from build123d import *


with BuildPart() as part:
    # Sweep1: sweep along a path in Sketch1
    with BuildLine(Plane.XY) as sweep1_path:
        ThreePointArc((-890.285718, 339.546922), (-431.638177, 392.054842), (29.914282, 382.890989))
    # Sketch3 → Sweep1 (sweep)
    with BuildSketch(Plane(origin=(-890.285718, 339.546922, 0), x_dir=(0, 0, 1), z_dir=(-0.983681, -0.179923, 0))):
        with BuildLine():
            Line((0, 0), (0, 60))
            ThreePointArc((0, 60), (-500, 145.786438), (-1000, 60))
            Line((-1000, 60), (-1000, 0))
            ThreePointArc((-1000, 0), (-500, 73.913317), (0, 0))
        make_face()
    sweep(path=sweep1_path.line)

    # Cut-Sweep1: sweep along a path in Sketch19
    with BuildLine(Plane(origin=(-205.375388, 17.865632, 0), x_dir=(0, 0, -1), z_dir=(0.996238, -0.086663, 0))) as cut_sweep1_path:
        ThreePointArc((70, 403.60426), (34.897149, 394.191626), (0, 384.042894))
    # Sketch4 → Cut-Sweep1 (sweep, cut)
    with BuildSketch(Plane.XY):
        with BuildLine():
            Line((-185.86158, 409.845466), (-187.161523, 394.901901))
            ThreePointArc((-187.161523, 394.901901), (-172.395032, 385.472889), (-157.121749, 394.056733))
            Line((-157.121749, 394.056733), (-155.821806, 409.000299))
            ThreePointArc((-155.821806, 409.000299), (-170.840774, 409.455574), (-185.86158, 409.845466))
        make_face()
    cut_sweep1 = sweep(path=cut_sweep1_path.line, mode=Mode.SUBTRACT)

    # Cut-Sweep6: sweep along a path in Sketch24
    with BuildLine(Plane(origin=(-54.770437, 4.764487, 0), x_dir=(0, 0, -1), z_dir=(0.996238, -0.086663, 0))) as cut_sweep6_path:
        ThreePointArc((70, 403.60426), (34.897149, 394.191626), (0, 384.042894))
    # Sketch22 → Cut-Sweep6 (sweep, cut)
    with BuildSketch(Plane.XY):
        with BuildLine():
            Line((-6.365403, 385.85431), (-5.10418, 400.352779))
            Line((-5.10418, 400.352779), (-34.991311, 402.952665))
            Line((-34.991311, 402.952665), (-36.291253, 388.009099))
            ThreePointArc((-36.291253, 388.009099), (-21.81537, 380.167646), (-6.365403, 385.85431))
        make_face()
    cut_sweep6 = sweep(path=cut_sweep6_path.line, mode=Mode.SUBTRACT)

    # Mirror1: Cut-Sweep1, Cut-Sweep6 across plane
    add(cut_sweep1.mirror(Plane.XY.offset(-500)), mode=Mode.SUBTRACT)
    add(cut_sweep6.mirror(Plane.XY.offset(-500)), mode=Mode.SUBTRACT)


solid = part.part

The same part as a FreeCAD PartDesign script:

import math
import FreeCAD as App
import Part
import Sketcher
from FreeCAD import Vector

doc = App.newDocument("Part")
body = doc.addObject("PartDesign::Body", "Body")

# Sketch on an angled plane
sketch1 = body.newObject("Sketcher::SketchObject", "Sketch")
sketch1.Placement = App.Placement(Vector(-890.285718, 339.546922, 0), App.Rotation(Vector(0, 0, 1), Vector(-0.179922946, 0.983680707, 0), Vector(-0.983680707, -0.179922946, 0), "ZXY"))
sketch1.addGeometry([
    Part.LineSegment(Vector(0, 0, 0), Vector(0, 60, 0)),
    Part.ArcOfCircle(Part.Circle(Vector(-500, -1354, 0), Vector(0, 0, 1), 1500), math.radians(71), math.radians(109)),
    Part.LineSegment(Vector(-1000, 60, 0), Vector(-1000, 0, 0)),
    Part.ArcOfCircle(Part.Circle(Vector(-500, -1654, 0), Vector(0, 0, 1), 1728), math.radians(73), math.radians(107)),
], False)
sketch1.addConstraint([
    Sketcher.Constraint("Coincident", 0, 2, 1, 1),
    Sketcher.Constraint("Coincident", 1, 2, 2, 1),
    Sketcher.Constraint("Coincident", 2, 2, 3, 2),
    Sketcher.Constraint("Coincident", 3, 1, 0, 1),
    Sketcher.Constraint("Vertical", 0),
    Sketcher.Constraint("Vertical", 2),
    Sketcher.Constraint("PointOnObject", 0, 2, -2),
    Sketcher.Constraint("PointOnObject", 2, 2, -1),
    Sketcher.Constraint("Vertical", 1, 3, 3, 3),
    Sketcher.Constraint("Equal", 0, 2),
    Sketcher.Constraint("DistanceY", 0, 1, 0, 2, 60.0),
    Sketcher.Constraint("DistanceX", 1, 3, -1, 1, 500.0),
    Sketcher.Constraint("Radius", 3, 1728.126871),
    Sketcher.Constraint("Radius", 1, 1499.999994),
])

# Sketch on XY plane
sketch2 = body.newObject("Sketcher::SketchObject", "Sketch001")
sketch2.AttachmentSupport = (doc.getObject("XY_Plane"), [""])
sketch2.MapMode = "FlatFace"
sketch2.addGeometry(Part.ArcOfCircle(Part.Circle(Vector(-269, -3056, 0), Vector(0, 0, 1), 3452), math.radians(85.03), math.radians(100.37)), False)
sketch2.addConstraint([
    Sketcher.Constraint("DistanceX", 0, 2, 0, 1, 920.2),
    Sketcher.Constraint("Radius", 0, 3451.799975),
    Sketcher.Constraint("DistanceY", 0, 3, -1, 1, 3055.922272),
    Sketcher.Constraint("DistanceX", -1, 1, 0, 1, 29.914282),
    Sketcher.Constraint("DistanceX", 0, 3, -1, 1, 269.228537),
])
doc.recompute()

additivepipe = body.newObject("PartDesign::AdditivePipe", "AdditivePipe")
additivepipe.Profile = sketch1
additivepipe.Spine = (sketch2, ["Edge1"])

# Sketch on XY plane
sketch3 = body.newObject("Sketcher::SketchObject", "Sketch002")
sketch3.AttachmentSupport = (doc.getObject("XY_Plane"), [""])
sketch3.MapMode = "FlatFace"
sketch3.addGeometry([
    Part.LineSegment(Vector(-186, 410, 0), Vector(-187, 395, 0)),
    Part.ArcOfCircle(Part.Circle(Vector(-172, 403, 0), Vector(0, 0, 1), 17), math.radians(-154), math.radians(-30)),
    Part.LineSegment(Vector(-157, 394, 0), Vector(-156, 409, 0)),
    Part.ArcOfCircle(Part.Circle(Vector(-268, -3041, 0), Vector(0, 0, 1), 3452), math.radians(88.14), math.radians(88.64)),
], False)
sketch3.addConstraint([
    Sketcher.Constraint("Coincident", 0, 2, 1, 1),
    Sketcher.Constraint("Coincident", 1, 2, 2, 1),
    Sketcher.Constraint("Coincident", 2, 2, 3, 1),
    Sketcher.Constraint("Coincident", 3, 2, 0, 1),
    Sketcher.Constraint("Parallel", 0, 2),
    Sketcher.Constraint("Equal", 0, 2),
    Sketcher.Constraint("Distance", 0, 15.0),
    Sketcher.Constraint("Radius", 1, 17.034174),
    Sketcher.Constraint("Radius", 3, 3451.776386),
    Sketcher.Constraint("DistanceY", -1, 1, 0, 2, 394.901901),
    Sketcher.Constraint("DistanceY", -1, 1, 2, 2, 409.000299),
    Sketcher.Constraint("DistanceX", 1, 2, -1, 1, 157.121749),
    Sketcher.Constraint("DistanceY", 3, 3, 1, 3, 3443.455778),
    Sketcher.Constraint("DistanceX", 3, 3, 0, 2, 80.75633),
])

# Sketch on an angled plane
sketch4 = body.newObject("Sketcher::SketchObject", "Sketch003")
sketch4.Placement = App.Placement(Vector(-205.375386, 17.865658, 0), App.Rotation(Vector(0.086662973, 0.996237687, 0), Vector(0, 0, 1), Vector(0.996237687, -0.086662973, 0), "ZXY"))
sketch4.addGeometry(Part.ArcOfCircle(Part.Circle(Vector(-1270, -500, 0), Vector(0, 0, 1), 1728), math.radians(14.41), math.radians(16.82)), False)
sketch4.addConstraint([
    Sketcher.Constraint("PointOnObject", 0, 2, -1),
    Sketcher.Constraint("DistanceY", 0, 1, -1, 1, 70.0),
    Sketcher.Constraint("Radius", 0, 1728.128783),
    Sketcher.Constraint("DistanceY", 0, 3, -1, 1, 500.000518),
    Sketcher.Constraint("DistanceX", 0, 3, -1, 1, 1270.172526),
])
doc.recompute()

subtractivepipe = body.newObject("PartDesign::SubtractivePipe", "SubtractivePipe")
subtractivepipe.Profile = sketch3
subtractivepipe.Spine = (sketch4, ["Edge1"])

# Sketch on XY plane
sketch5 = body.newObject("Sketcher::SketchObject", "Sketch004")
sketch5.AttachmentSupport = (doc.getObject("XY_Plane"), [""])
sketch5.MapMode = "FlatFace"
sketch5.addGeometry([
    Part.LineSegment(Vector(-6, 386, 0), Vector(-5, 400, 0)),
    Part.LineSegment(Vector(-5, 400, 0), Vector(-35, 403, 0)),
    Part.LineSegment(Vector(-35, 403, 0), Vector(-36, 388, 0)),
    Part.ArcOfCircle(Part.Circle(Vector(-20, 400, 0), Vector(0, 0, 1), 20), math.radians(-143), math.radians(-45)),
], False)
sketch5.addConstraint([
    Sketcher.Constraint("Coincident", 0, 2, 1, 1),
    Sketcher.Constraint("Coincident", 1, 2, 2, 1),
    Sketcher.Constraint("Coincident", 2, 2, 3, 1),
    Sketcher.Constraint("Coincident", 3, 2, 0, 1),
    Sketcher.Constraint("Perpendicular", 0, 1),
    Sketcher.Constraint("Perpendicular", 1, 2),
    Sketcher.Constraint("Distance", 1, 30.0),
    Sketcher.Constraint("Distance", 2, 15.0),
    Sketcher.Constraint("Radius", 3, 19.983542),
    Sketcher.Constraint("DistanceY", -1, 1, 2, 2, 388.009099),
    Sketcher.Constraint("DistanceX", 0, 2, -1, 1, 5.10418),
    Sketcher.Constraint("DistanceY", -1, 1, 0, 2, 400.352779),
    Sketcher.Constraint("DistanceY", -1, 1, 3, 2, 385.85431),
])

# Sketch on an angled plane
sketch6 = body.newObject("Sketcher::SketchObject", "Sketch005")
sketch6.Placement = App.Placement(Vector(-54.770436, 4.764494, 0), App.Rotation(Vector(-0.086662973, -0.996237687, 0), Vector(0, 0, 1), Vector(-0.996237687, 0.086662973, 0), "ZXY"))
sketch6.addGeometry(Part.ArcOfCircle(Part.Circle(Vector(1270, -500, 0), Vector(0, 0, 1), 1728), math.radians(163.18), math.radians(165.59)), False)
sketch6.addConstraint([
    Sketcher.Constraint("PointOnObject", 0, 1, -1),
    Sketcher.Constraint("DistanceY", 0, 2, -1, 1, 70.0),
    Sketcher.Constraint("Radius", 0, 1728.128783),
    Sketcher.Constraint("DistanceX", -1, 1, 0, 3, 1270.172508),
    Sketcher.Constraint("DistanceY", 0, 3, -1, 1, 500.000518),
])
doc.recompute()

subtractivepipe2 = body.newObject("PartDesign::SubtractivePipe", "SubtractivePipe001")
subtractivepipe2.Profile = sketch5
subtractivepipe2.Spine = (sketch6, ["Edge1"])
doc.recompute()

datumplane = body.newObject("PartDesign::Plane", "DatumPlane")
datumplane.AttachmentSupport = (doc.getObject("XY_Plane"), [""])
datumplane.MapMode = "FlatFace"
datumplane.AttachmentOffset = App.Placement(Vector(0, 0, -500), App.Rotation())
mirrored = body.newObject("PartDesign::Mirrored", "Mirrored")
mirrored.Originals = [subtractivepipe, subtractivepipe2]
mirrored.MirrorPlane = (datumplane, [""])
body.Tip = mirrored

doc.recompute()
